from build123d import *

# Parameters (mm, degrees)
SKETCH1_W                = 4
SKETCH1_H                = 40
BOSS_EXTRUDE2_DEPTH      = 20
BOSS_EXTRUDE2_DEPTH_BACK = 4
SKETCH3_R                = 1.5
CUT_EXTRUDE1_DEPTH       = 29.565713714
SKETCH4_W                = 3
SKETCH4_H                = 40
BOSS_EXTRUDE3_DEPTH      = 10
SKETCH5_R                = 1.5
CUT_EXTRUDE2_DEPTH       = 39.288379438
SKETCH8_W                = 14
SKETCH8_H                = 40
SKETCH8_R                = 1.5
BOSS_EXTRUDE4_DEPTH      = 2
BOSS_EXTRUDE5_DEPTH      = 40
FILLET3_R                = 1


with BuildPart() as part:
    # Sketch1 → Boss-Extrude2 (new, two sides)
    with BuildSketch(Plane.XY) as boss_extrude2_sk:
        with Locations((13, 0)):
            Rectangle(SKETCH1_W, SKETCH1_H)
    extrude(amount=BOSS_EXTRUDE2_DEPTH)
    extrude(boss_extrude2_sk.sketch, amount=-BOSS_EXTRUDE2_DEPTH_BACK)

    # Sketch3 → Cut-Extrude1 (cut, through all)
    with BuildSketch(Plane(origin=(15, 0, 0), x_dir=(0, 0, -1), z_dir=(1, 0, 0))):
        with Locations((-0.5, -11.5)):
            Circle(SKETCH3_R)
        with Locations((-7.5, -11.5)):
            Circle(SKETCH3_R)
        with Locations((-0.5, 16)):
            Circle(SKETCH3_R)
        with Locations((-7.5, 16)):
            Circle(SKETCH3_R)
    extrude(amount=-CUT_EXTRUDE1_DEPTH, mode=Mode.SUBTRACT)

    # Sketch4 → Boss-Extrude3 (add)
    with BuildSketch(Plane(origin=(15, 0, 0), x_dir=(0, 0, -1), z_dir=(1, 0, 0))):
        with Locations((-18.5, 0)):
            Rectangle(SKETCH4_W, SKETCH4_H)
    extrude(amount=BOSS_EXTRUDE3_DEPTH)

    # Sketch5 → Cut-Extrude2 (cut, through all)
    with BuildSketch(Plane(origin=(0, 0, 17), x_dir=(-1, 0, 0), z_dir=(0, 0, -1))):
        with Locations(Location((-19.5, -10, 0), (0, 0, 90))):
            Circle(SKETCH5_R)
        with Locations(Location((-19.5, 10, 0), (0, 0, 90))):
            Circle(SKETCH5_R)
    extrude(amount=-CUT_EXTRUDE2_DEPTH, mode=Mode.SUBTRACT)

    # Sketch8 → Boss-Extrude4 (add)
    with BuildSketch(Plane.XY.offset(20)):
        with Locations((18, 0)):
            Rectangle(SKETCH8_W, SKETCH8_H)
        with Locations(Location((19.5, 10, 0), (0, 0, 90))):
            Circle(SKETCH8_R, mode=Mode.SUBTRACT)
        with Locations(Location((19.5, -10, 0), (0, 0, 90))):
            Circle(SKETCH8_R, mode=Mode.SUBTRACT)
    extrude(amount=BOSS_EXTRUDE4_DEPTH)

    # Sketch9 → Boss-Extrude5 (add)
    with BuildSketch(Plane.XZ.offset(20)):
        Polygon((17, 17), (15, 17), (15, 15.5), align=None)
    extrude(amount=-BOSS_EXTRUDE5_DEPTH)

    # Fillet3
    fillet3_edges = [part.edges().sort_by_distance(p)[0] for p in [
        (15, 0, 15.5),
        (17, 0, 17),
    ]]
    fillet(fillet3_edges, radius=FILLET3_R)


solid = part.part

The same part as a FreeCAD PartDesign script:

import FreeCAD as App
import Part
import Sketcher

V = App.Vector
Q = App.Units.Quantity


def edges_at(feature, points):
    """Names of the edges that pass closest to the given points."""
    edges = feature.Shape.Edges
    near = lambda p: min(range(len(edges)), key=lambda i: edges[i].distToShape(Part.Vertex(*p))[0])
    return sorted({f"Edge{near(p) + 1}" for p in points})


def add_polygon(sketch, points):
    """Adds a closed chain of lines whose ends are joined by coincident constraints."""
    first, n = sketch.GeometryCount, len(points)
    for a, b in zip(points, points[1:] + points[:1]):
        sketch.addGeometry(Part.LineSegment(App.Vector(*a, 0), App.Vector(*b, 0)), False)
    for i in range(n):
        sketch.addConstraint(Sketcher.Constraint("Coincident", first + i, 2, first + (i + 1) % n, 1))

doc = App.newDocument("Part")
params = doc.addObject("Spreadsheet::Sheet", "Params")
for row, (alias, value) in enumerate([
    ("sketch1_width", "4 mm"),
    ("sketch1_height", "40 mm"),
    ("pad1_length", "20 mm"),
    ("pad1_length2", "4 mm"),
    ("sketch2_diameter", "3 mm"),
    ("sketch3_width", "40 mm"),
    ("sketch3_height", "3 mm"),
    ("pad2_length", "10 mm"),
    ("sketch4_diameter", "3 mm"),
    ("sketch5_diameter", "3 mm"),
    ("sketch5_width", "14 mm"),
    ("sketch5_height", "40 mm"),
    ("pad3_length", "2 mm"),
    ("sketch6_width", "2 mm"),
    ("sketch6_height", "1.5 mm"),
    ("pad4_length", "40 mm"),
    ("fillet_radius", "1 mm"),
], start=1):
    params.set(f"A{row}", alias)
    params.set(f"B{row}", "=" + value)
    params.setAlias(f"B{row}", alias)

body = doc.addObject("PartDesign::Body", "Body")

# Sketch on XY plane
sketch1 = body.newObject("Sketcher::SketchObject", "Sketch")
sketch1.AttachmentSupport = (doc.getObject("XY_Plane"), [""])
sketch1.MapMode = "FlatFace"
add_polygon(sketch1, [(11, 20), (11, -20), (15, -20), (15, 20)])  # lines 0-3
sketch1.addConstraint(Sketcher.Constraint("Vertical", 0))
sketch1.addConstraint(Sketcher.Constraint("Horizontal", 1))
sketch1.addConstraint(Sketcher.Constraint("Vertical", 2))
sketch1.addConstraint(Sketcher.Constraint("Horizontal", 3))
sketch1.addConstraint(Sketcher.Constraint("DistanceX", 1, 1, 1, 2, Q("4 mm")))
sketch1.addConstraint(Sketcher.Constraint("DistanceY", 0, 2, 0, 1, Q("40 mm")))
sketch1.addConstraint(Sketcher.Constraint("DistanceX", -1, 1, 0, 2, Q("11 mm")))
sketch1.addConstraint(Sketcher.Constraint("DistanceY", 0, 2, -1, 1, Q("20 mm")))
sketch1.setExpression("Constraints[8]", "Params.sketch1_width")
sketch1.setExpression("Constraints[9]", "Params.sketch1_height")
pad1 = body.newObject("PartDesign::Pad", "Pad")
pad1.Profile = sketch1
pad1.Type = "TwoLengths"
pad1.setExpression("Length", "Params.pad1_length")
pad1.setExpression("Length2", "Params.pad1_length2")

# Sketch on YZ plane
sketch2 = body.newObject("Sketcher::SketchObject", "Sketch001")
sketch2.AttachmentSupport = (doc.getObject("YZ_Plane"), [""])
sketch2.MapMode = "FlatFace"
sketch2.AttachmentOffset = App.Placement(V(0, 0, 15), App.Rotation())
sketch2.addGeometry(Part.Circle(V(-11.5, 0.5, 0), V(0, 0, 1), 1.5), False)
sketch2.addGeometry(Part.Circle(V(-11.5, 7.5, 0), V(0, 0, 1), 1.5), False)
sketch2.addGeometry(Part.Circle(V(16, 0.5, 0), V(0, 0, 1), 1.5), False)
sketch2.addGeometry(Part.Circle(V(16, 7.5, 0), V(0, 0, 1), 1.5), False)
sketch2.addConstraint(Sketcher.Constraint("Equal", 0, 1))
sketch2.addConstraint(Sketcher.Constraint("Equal", 1, 2))
sketch2.addConstraint(Sketcher.Constraint("Equal", 2, 3))
sketch2.addConstraint(Sketcher.Constraint("Horizontal", 0, 3, 2, 3))
sketch2.addConstraint(Sketcher.Constraint("Horizontal", 1, 3, 3, 3))
sketch2.addConstraint(Sketcher.Constraint("Vertical", 0, 3, 1, 3))
sketch2.addConstraint(Sketcher.Constraint("Vertical", 2, 3, 3, 3))
sketch2.addConstraint(Sketcher.Constraint("Diameter", 0, Q("3 mm")))
sketch2.addConstraint(Sketcher.Constraint("DistanceX", -1, 1, 2, 3, Q("16 mm")))
sketch2.addConstraint(Sketcher.Constraint("DistanceY", 0, 3, 1, 3, Q("7 mm")))
sketch2.addConstraint(Sketcher.Constraint("DistanceX", 0, 3, -1, 1, Q("11.5 mm")))
sketch2.addConstraint(Sketcher.Constraint("DistanceY", -1, 1, 0, 3, Q("0.5 mm")))
sketch2.setExpression("Constraints[7]", "Params.sketch2_diameter")
pocket1 = body.newObject("PartDesign::Pocket", "Pocket")
pocket1.Profile = sketch2
pocket1.Type = "ThroughAll"

# Sketch on YZ plane
sketch3 = body.newObject("Sketcher::SketchObject", "Sketch002")
sketch3.AttachmentSupport = (doc.getObject("YZ_Plane"), [""])
sketch3.MapMode = "FlatFace"
sketch3.AttachmentOffset = App.Placement(V(0, 0, 15), App.Rotation())
add_polygon(sketch3, [(20, 20), (-20, 20), (-20, 17), (20, 17)])  # lines 0-3
sketch3.addConstraint(Sketcher.Constraint("Horizontal", 0))
sketch3.addConstraint(Sketcher.Constraint("Vertical", 1))
sketch3.addConstraint(Sketcher.Constraint("Horizontal", 2))
sketch3.addConstraint(Sketcher.Constraint("Vertical", 3))
sketch3.addConstraint(Sketcher.Constraint("DistanceX", 0, 2, 0, 1, Q("40 mm")))
sketch3.addConstraint(Sketcher.Constraint("DistanceY", 1, 2, 1, 1, Q("3 mm")))
sketch3.addConstraint(Sketcher.Constraint("DistanceX", 0, 2, -1, 1, Q("20 mm")))
sketch3.addConstraint(Sketcher.Constraint("DistanceY", -1, 1, 0, 2, Q("20 mm")))
sketch3.setExpression("Constraints[8]", "Params.sketch3_width")
sketch3.setExpression("Constraints[9]", "Params.sketch3_height")
pad2 = body.newObject("PartDesign::Pad", "Pad001")
pad2.Profile = sketch3
pad2.setExpression("Length", "Params.pad2_length")

# Sketch on XY plane
sketch4 = body.newObject("Sketcher::SketchObject", "Sketch003")
sketch4.AttachmentSupport = (doc.getObject("XY_Plane"), [""])
sketch4.MapMode = "FlatFace"
sketch4.AttachmentOffset = App.Placement(V(0, 0, 17), App.Rotation())
sketch4.addGeometry(Part.Circle(V(19.5, -10, 0), V(0, 0, 1), 1.5), False)
sketch4.addGeometry(Part.Circle(V(19.5, 10, 0), V(0, 0, 1), 1.5), False)
sketch4.addConstraint(Sketcher.Constraint("Equal", 0, 1))
sketch4.addConstraint(Sketcher.Constraint("Symmetric", 0, 3, 1, 3, -1))
sketch4.addConstraint(Sketcher.Constraint("Diameter", 0, Q("3 mm")))
sketch4.addConstraint(Sketcher.Constraint("DistanceY", 0, 3, -1, 1, Q("10 mm")))
sketch4.addConstraint(Sketcher.Constraint("DistanceX", -1, 1, 0, 3, Q("19.5 mm")))
sketch4.setExpression("Constraints[2]", "Params.sketch4_diameter")
pocket2 = body.newObject("PartDesign::Pocket", "Pocket001")
pocket2.Profile = sketch4
pocket2.Type = "ThroughAll"
pocket2.Reversed = True

# Sketch on XY plane
sketch5 = body.newObject("Sketcher::SketchObject", "Sketch004")
sketch5.AttachmentSupport = (doc.getObject("XY_Plane"), [""])
sketch5.MapMode = "FlatFace"
sketch5.AttachmentOffset = App.Placement(V(0, 0, 20), App.Rotation())
add_polygon(sketch5, [(11, 20), (11, -20), (25, -20), (25, 20)])  # lines 0-3
sketch5.addGeometry(Part.Circle(V(19.5, -10, 0), V(0, 0, 1), 1.5), False)  # 4
sketch5.addGeometry(Part.Circle(V(19.5, 10, 0), V(0, 0, 1), 1.5), False)  # 5
sketch5.addConstraint(Sketcher.Constraint("Vertical", 0))
sketch5.addConstraint(Sketcher.Constraint("Horizontal", 1))
sketch5.addConstraint(Sketcher.Constraint("Vertical", 2))
sketch5.addConstraint(Sketcher.Constraint("Horizontal", 3))
sketch5.addConstraint(Sketcher.Constraint("Equal", 4, 5))
sketch5.addConstraint(Sketcher.Constraint("Symmetric", 4, 3, 5, 3, -1))
sketch5.addConstraint(Sketcher.Constraint("Diameter", 4, Q("3 mm")))
sketch5.addConstraint(Sketcher.Constraint("DistanceX", 1, 1, 1, 2, Q("14 mm")))
sketch5.addConstraint(Sketcher.Constraint("DistanceY", 0, 2, 0, 1, Q("40 mm")))
sketch5.addConstraint(Sketcher.Constraint("DistanceY", 4, 3, -1, 1, Q("10 mm")))
sketch5.addConstraint(Sketcher.Constraint("DistanceX", -1, 1, 0, 2, Q("11 mm")))
sketch5.addConstraint(Sketcher.Constraint("DistanceY", 0, 2, -1, 1, Q("20 mm")))
sketch5.addConstraint(Sketcher.Constraint("DistanceX", -1, 1, 4, 3, Q("19.5 mm")))
sketch5.setExpression("Constraints[10]", "Params.sketch5_diameter")
sketch5.setExpression("Constraints[11]", "Params.sketch5_width")
sketch5.setExpression("Constraints[12]", "Params.sketch5_height")
pad3 = body.newObject("PartDesign::Pad", "Pad002")
pad3.Profile = sketch5
pad3.setExpression("Length", "Params.pad3_length")

# Sketch on XZ plane
sketch6 = body.newObject("Sketcher::SketchObject", "Sketch005")
sketch6.AttachmentSupport = (doc.getObject("XZ_Plane"), [""])
sketch6.MapMode = "FlatFace"
sketch6.AttachmentOffset = App.Placement(V(0, 0, 20), App.Rotation())
add_polygon(sketch6, [(17, 17), (15, 17), (15, 15.5)])  # lines 0-2
sketch6.addConstraint(Sketcher.Constraint("Horizontal", 0))
sketch6.addConstraint(Sketcher.Constraint("Vertical", 1))
sketch6.addConstraint(Sketcher.Constraint("DistanceX", 0, 2, 0, 1, Q("2 mm")))
sketch6.addConstraint(Sketcher.Constraint("DistanceY", 1, 2, 1, 1, Q("1.5 mm")))
sketch6.addConstraint(Sketcher.Constraint("DistanceX", -1, 1, 0, 2, Q("15 mm")))
sketch6.addConstraint(Sketcher.Constraint("DistanceY", -1, 1, 0, 2, Q("17 mm")))
sketch6.setExpression("Constraints[5]", "Params.sketch6_width")
sketch6.setExpression("Constraints[6]", "Params.sketch6_height")
pad4 = body.newObject("PartDesign::Pad", "Pad003")
pad4.Profile = sketch6
pad4.setExpression("Length", "Params.pad4_length")
pad4.Reversed = True
doc.recompute()

fillet = body.newObject("PartDesign::Fillet", "Fillet")
fillet.Base = (pad4, edges_at(pad4, [(15, 0, 15.5), (17, 0, 17)]))
fillet.setExpression("Radius", "Params.fillet_radius")

doc.recompute()
